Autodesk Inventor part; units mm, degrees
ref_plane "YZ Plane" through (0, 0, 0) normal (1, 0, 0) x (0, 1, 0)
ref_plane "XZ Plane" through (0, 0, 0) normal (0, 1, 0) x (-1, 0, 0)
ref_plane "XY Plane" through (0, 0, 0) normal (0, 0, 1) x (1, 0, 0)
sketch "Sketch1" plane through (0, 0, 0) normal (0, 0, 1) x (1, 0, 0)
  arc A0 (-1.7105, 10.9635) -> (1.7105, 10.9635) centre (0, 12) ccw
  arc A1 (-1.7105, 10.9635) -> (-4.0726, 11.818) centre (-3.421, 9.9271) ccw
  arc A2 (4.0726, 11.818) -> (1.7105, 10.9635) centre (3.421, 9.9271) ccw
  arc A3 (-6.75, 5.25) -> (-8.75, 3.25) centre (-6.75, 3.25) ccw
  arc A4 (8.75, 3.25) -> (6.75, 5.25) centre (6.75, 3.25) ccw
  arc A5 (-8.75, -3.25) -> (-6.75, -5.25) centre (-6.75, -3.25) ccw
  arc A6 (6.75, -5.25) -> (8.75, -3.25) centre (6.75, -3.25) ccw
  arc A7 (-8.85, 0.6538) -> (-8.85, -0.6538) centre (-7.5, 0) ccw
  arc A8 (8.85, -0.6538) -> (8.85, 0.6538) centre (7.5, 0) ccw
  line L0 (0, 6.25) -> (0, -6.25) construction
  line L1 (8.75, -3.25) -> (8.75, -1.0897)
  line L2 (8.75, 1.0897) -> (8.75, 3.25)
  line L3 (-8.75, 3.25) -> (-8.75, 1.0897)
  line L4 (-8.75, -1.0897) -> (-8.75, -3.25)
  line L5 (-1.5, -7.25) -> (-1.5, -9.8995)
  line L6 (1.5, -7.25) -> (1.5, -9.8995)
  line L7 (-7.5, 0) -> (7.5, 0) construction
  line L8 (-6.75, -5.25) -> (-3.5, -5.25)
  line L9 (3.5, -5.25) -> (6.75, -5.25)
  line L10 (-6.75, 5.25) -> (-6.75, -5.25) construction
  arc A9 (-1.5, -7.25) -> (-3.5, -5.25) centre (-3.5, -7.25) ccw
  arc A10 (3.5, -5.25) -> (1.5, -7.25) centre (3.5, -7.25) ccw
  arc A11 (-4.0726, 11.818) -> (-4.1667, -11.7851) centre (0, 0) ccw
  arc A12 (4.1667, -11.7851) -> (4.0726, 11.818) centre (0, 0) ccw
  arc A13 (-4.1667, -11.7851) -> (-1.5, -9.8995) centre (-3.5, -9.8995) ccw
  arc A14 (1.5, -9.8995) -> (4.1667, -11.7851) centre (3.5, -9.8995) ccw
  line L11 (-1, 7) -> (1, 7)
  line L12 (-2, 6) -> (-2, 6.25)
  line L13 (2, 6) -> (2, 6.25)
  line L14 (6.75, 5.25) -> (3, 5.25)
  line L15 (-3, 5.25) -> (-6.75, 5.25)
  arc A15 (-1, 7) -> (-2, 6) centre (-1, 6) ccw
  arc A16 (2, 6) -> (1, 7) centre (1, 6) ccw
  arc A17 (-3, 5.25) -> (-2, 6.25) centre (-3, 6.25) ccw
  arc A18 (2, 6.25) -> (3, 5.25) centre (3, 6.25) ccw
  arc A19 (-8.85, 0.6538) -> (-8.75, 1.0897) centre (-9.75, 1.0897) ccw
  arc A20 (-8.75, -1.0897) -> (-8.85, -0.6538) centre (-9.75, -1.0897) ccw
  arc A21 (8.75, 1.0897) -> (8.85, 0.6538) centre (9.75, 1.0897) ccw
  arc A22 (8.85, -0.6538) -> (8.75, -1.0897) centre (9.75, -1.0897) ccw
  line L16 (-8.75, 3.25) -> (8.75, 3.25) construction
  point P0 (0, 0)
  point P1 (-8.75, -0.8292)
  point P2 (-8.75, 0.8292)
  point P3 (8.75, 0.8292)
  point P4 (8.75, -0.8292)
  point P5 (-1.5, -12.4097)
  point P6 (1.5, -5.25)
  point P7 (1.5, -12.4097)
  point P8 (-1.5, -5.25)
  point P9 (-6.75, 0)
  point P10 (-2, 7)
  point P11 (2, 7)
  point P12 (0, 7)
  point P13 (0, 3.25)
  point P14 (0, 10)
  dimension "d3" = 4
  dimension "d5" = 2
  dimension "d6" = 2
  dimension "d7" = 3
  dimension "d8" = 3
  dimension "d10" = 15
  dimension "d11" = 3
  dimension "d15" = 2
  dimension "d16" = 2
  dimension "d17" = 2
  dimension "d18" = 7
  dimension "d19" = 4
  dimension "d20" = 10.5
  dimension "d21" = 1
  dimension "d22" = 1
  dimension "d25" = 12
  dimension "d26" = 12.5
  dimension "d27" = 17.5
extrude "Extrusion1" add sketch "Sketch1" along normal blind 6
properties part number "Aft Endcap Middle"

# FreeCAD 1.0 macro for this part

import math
import FreeCAD as App
import Part
import Sketcher

V = App.Vector
Q = App.Units.Quantity

doc = App.newDocument("Part")
body = doc.addObject("PartDesign::Body", "Body")

# Sketch on XY plane
sketch1 = doc.addObject("Sketcher::SketchObject", "Sketch")
body.addObject(sketch1)
sketch1.AttachmentSupport = (doc.XY_Plane, [""])
sketch1.MapMode = "FlatFace"
sketch1.addGeometry(Part.ArcOfCircle(Part.Circle(V(0, 12, 0), V(0, 0, 1), 2.000036), math.radians(-148.78568), math.radians(-31.21432)), False)
sketch1.addGeometry(Part.ArcOfCircle(Part.Circle(V(-3.421, 9.9271, 0), V(0, 0, 1), 1.999984), math.radians(31.211869), math.radians(109.013839)), False)
sketch1.addGeometry(Part.ArcOfCircle(Part.Circle(V(0, 0, 0), V(0, 0, 1), 12.499999), math.radians(109.014459), math.radians(250.528615)), False)
sketch1.addGeometry(Part.ArcOfCircle(Part.Circle(V(-3.5, -9.8995, 0), V(0, 0, 1), 1.999994), math.radians(-109.472294), math.radians(0)), False)
sketch1.addGeometry(Part.LineSegment(V(-1.5, -9.8995, 0), V(-1.5, -7.25, 0)), False)
sketch1.addGeometry(Part.ArcOfCircle(Part.Circle(V(-3.5, -7.25, 0), V(0, 0, 1), 2), math.radians(0), math.radians(90)), False)
sketch1.addGeometry(Part.LineSegment(V(-3.5, -5.25, 0), V(-6.75, -5.25, 0)), False)
sketch1.addGeometry(Part.ArcOfCircle(Part.Circle(V(-6.75, -3.25, 0), V(0, 0, 1), 2), math.radians(180), math.radians(270)), False)
sketch1.addGeometry(Part.LineSegment(V(-8.75, -3.25, 0), V(-8.75, -1.0897, 0)), False)
sketch1.addGeometry(Part.ArcOfCircle(Part.Circle(V(-9.75, -1.0897, 0), V(0, 0, 1), 1), math.radians(0), math.radians(25.842454)), False)
sketch1.addGeometry(Part.ArcOfCircle(Part.Circle(V(-7.5, 0, 0), V(0, 0, 1), 1.499985), math.radians(154.159265), math.radians(205.840735)), False)
sketch1.addGeometry(Part.ArcOfCircle(Part.Circle(V(-9.75, 1.0897, 0), V(0, 0, 1), 1.000004), math.radians(-25.842454), math.radians(0)), False)
sketch1.addGeometry(Part.LineSegment(V(-8.75, 1.0897, 0), V(-8.75, 3.25, 0)), False)
sketch1.addGeometry(Part.ArcOfCircle(Part.Circle(V(-6.75, 3.25, 0), V(0, 0, 1), 2), math.radians(90), math.radians(180)), False)
sketch1.addGeometry(Part.LineSegment(V(-6.75, 5.25, 0), V(-3, 5.25, 0)), False)
sketch1.addGeometry(Part.ArcOfCircle(Part.Circle(V(-3, 6.25, 0), V(0, 0, 1), 1), math.radians(-90), math.radians(0)), False)
sketch1.addGeometry(Part.LineSegment(V(-2, 6.25, 0), V(-2, 6, 0)), False)
sketch1.addGeometry(Part.ArcOfCircle(Part.Circle(V(-1, 6, 0), V(0, 0, 1), 1), math.radians(90), math.radians(180)), False)
sketch1.addGeometry(Part.LineSegment(V(-1, 7, 0), V(1, 7, 0)), False)
sketch1.addGeometry(Part.ArcOfCircle(Part.Circle(V(1, 6, 0), V(0, 0, 1), 1), math.radians(0), math.radians(90)), False)
sketch1.addGeometry(Part.LineSegment(V(2, 6, 0), V(2, 6.25, 0)), False)
sketch1.addGeometry(Part.ArcOfCircle(Part.Circle(V(3, 6.25, 0), V(0, 0, 1), 1), math.radians(180), math.radians(270)), False)
sketch1.addGeometry(Part.LineSegment(V(3, 5.25, 0), V(6.75, 5.25, 0)), False)
sketch1.addGeometry(Part.ArcOfCircle(Part.Circle(V(6.75, 3.25, 0), V(0, 0, 1), 2), math.radians(0), math.radians(90)), False)
sketch1.addGeometry(Part.LineSegment(V(8.75, 3.25, 0), V(8.75, 1.0897, 0)), False)
sketch1.addGeometry(Part.ArcOfCircle(Part.Circle(V(9.75, 1.0897, 0), V(0, 0, 1), 1), math.radians(180), math.radians(205.842454)), False)
sketch1.addGeometry(Part.ArcOfCircle(Part.Circle(V(7.5, 0, 0), V(0, 0, 1), 1.499985), math.radians(-25.840735), math.radians(25.840735)), False)
sketch1.addGeometry(Part.ArcOfCircle(Part.Circle(V(9.75, -1.0897, 0), V(0, 0, 1), 1.000004), math.radians(154.157546), math.radians(180)), False)
sketch1.addGeometry(Part.LineSegment(V(8.75, -1.0897, 0), V(8.75, -3.25, 0)), False)
sketch1.addGeometry(Part.ArcOfCircle(Part.Circle(V(6.75, -3.25, 0), V(0, 0, 1), 2), math.radians(-90), math.radians(0)), False)
sketch1.addGeometry(Part.LineSegment(V(6.75, -5.25, 0), V(3.5, -5.25, 0)), False)
sketch1.addGeometry(Part.ArcOfCircle(Part.Circle(V(3.5, -7.25, 0), V(0, 0, 1), 2), math.radians(90), math.radians(180)), False)
sketch1.addGeometry(Part.LineSegment(V(1.5, -7.25, 0), V(1.5, -9.8995, 0)), False)
sketch1.addGeometry(Part.ArcOfCircle(Part.Circle(V(3.5, -9.8995, 0), V(0, 0, 1), 2), math.radians(180), math.radians(289.472294)), False)
sketch1.addGeometry(Part.ArcOfCircle(Part.Circle(V(0, 0, 0), V(0, 0, 1), 12.500048), math.radians(-70.528615), math.radians(70.985541)), False)
sketch1.addGeometry(Part.ArcOfCircle(Part.Circle(V(3.421, 9.9271, 0), V(0, 0, 1), 2.000021), math.radians(70.986161), math.radians(148.788131)), False)
sketch1.addConstraint(Sketcher.Constraint("Tangent", 0, 1, 1, 1))
sketch1.addConstraint(Sketcher.Constraint("Tangent", 1, 2, 2, 1))
sketch1.addConstraint(Sketcher.Constraint("Tangent", 2, 2, 3, 1))
sketch1.addConstraint(Sketcher.Constraint("Tangent", 3, 2, 4, 1))
sketch1.addConstraint(Sketcher.Constraint("Tangent", 4, 2, 5, 1))
sketch1.addConstraint(Sketcher.Constraint("Tangent", 5, 2, 6, 1))
sketch1.addConstraint(Sketcher.Constraint("Tangent", 6, 2, 7, 2))
sketch1.addConstraint(Sketcher.Constraint("Tangent", 7, 1, 8, 1))
sketch1.addConstraint(Sketcher.Constraint("Tangent", 8, 2, 9, 1))
sketch1.addConstraint(Sketcher.Constraint("Tangent", 9, 2, 10, 2))
sketch1.addConstraint(Sketcher.Constraint("Tangent", 10, 1, 11, 1))
sketch1.addConstraint(Sketcher.Constraint("Tangent", 11, 2, 12, 1))
sketch1.addConstraint(Sketcher.Constraint("Tangent", 12, 2, 13, 2))
sketch1.addConstraint(Sketcher.Constraint("Tangent", 13, 1, 14, 1))
sketch1.addConstraint(Sketcher.Constraint("Tangent", 14, 2, 15, 1))
sketch1.addConstraint(Sketcher.Constraint("Tangent", 15, 2, 16, 1))
sketch1.addConstraint(Sketcher.Constraint("Tangent", 16, 2, 17, 2))
sketch1.addConstraint(Sketcher.Constraint("Tangent", 17, 1, 18, 1))
sketch1.addConstraint(Sketcher.Constraint("Tangent", 18, 2, 19, 2))
sketch1.addConstraint(Sketcher.Constraint("Tangent", 19, 1, 20, 1))
sketch1.addConstraint(Sketcher.Constraint("Tangent", 20, 2, 21, 1))
sketch1.addConstraint(Sketcher.Constraint("Tangent", 21, 2, 22, 1))
sketch1.addConstraint(Sketcher.Constraint("Tangent", 22, 2, 23, 2))
sketch1.addConstraint(Sketcher.Constraint("Tangent", 23, 1, 24, 1))
sketch1.addConstraint(Sketcher.Constraint("Tangent", 24, 2, 25, 1))
sketch1.addConstraint(Sketcher.Constraint("Tangent", 25, 2, 26, 2))
sketch1.addConstraint(Sketcher.Constraint("Tangent", 26, 1, 27, 1))
sketch1.addConstraint(Sketcher.Constraint("Tangent", 27, 2, 28, 1))
sketch1.addConstraint(Sketcher.Constraint("Tangent", 28, 2, 29, 2))
sketch1.addConstraint(Sketcher.Constraint("Tangent", 29, 1, 30, 1))
sketch1.addConstraint(Sketcher.Constraint("Tangent", 30, 2, 31, 1))
sketch1.addConstraint(Sketcher.Constraint("Tangent", 31, 2, 32, 1))
sketch1.addConstraint(Sketcher.Constraint("Tangent", 32, 2, 33, 1))
sketch1.addConstraint(Sketcher.Constraint("Tangent", 33, 2, 34, 1))
sketch1.addConstraint(Sketcher.Constraint("Tangent", 34, 2, 35, 1))
sketch1.addConstraint(Sketcher.Constraint("Tangent", 35, 2, 0, 2))
sketch1.addConstraint(Sketcher.Constraint("Vertical", 4))
sketch1.addConstraint(Sketcher.Constraint("Horizontal", 6))
sketch1.addConstraint(Sketcher.Constraint("Vertical", 8))
sketch1.addConstraint(Sketcher.Constraint("Vertical", 12))
sketch1.addConstraint(Sketcher.Constraint("Horizontal", 14))
sketch1.addConstraint(Sketcher.Constraint("Vertical", 16))
sketch1.addConstraint(Sketcher.Constraint("Horizontal", 18))
sketch1.addConstraint(Sketcher.Constraint("Vertical", 20))
sketch1.addConstraint(Sketcher.Constraint("Horizontal", 22))
sketch1.addConstraint(Sketcher.Constraint("Vertical", 24))
sketch1.addConstraint(Sketcher.Constraint("Vertical", 28))
sketch1.addConstraint(Sketcher.Constraint("Horizontal", 30))
sketch1.addConstraint(Sketcher.Constraint("Vertical", 32))
sketch1.addConstraint(Sketcher.Constraint("Coincident", 2, 3, -1, 1))
sketch1.addConstraint(Sketcher.Constraint("Coincident", 34, 3, -1, 1))
sketch1.addConstraint(Sketcher.Constraint("Equal", 0, 1))
sketch1.addConstraint(Sketcher.Constraint("Equal", 1, 3))
sketch1.addConstraint(Sketcher.Constraint("Equal", 3, 5))
sketch1.addConstraint(Sketcher.Constraint("Equal", 5, 7))
sketch1.addConstraint(Sketcher.Constraint("Equal", 9, 11))
sketch1.addConstraint(Sketcher.Constraint("Equal", 7, 13))
sketch1.addConstraint(Sketcher.Constraint("Equal", 11, 15))
sketch1.addConstraint(Sketcher.Constraint("Equal", 15, 17))
sketch1.addConstraint(Sketcher.Constraint("Equal", 17, 19))
sketch1.addConstraint(Sketcher.Constraint("Equal", 19, 21))
sketch1.addConstraint(Sketcher.Constraint("Equal", 13, 23))
sketch1.addConstraint(Sketcher.Constraint("Equal", 21, 25))
sketch1.addConstraint(Sketcher.Constraint("Equal", 10, 26))
sketch1.addConstraint(Sketcher.Constraint("Equal", 25, 27))
sketch1.addConstraint(Sketcher.Constraint("Equal", 23, 29))
sketch1.addConstraint(Sketcher.Constraint("Equal", 29, 31))
sketch1.addConstraint(Sketcher.Constraint("Equal", 31, 33))
sketch1.addConstraint(Sketcher.Constraint("Equal", 2, 34))
sketch1.addConstraint(Sketcher.Constraint("Equal", 33, 35))
sketch1.addConstraint(Sketcher.Constraint("Symmetric", 7, 3, 23, 3, -1, 1))
sketch1.addConstraint(Sketcher.Constraint("Symmetric", 10, 3, 26, 3, -1, 1))
sketch1.addConstraint(Sketcher.Constraint("Symmetric", 13, 3, 29, 3, -1, 1))
sketch1.addConstraint(Sketcher.Constraint("Symmetric", 15, 3, 21, 3, -2))
sketch1.addConstraint(Sketcher.Constraint("Symmetric", 11, 3, 25, 3, -2))
sketch1.addConstraint(Sketcher.Constraint("PointOnObject", 0, 3, -2))
sketch1.addConstraint(Sketcher.Constraint("Horizontal", 3, 3, 33, 3))
sketch1.addConstraint(Sketcher.Constraint("Radius", 0, Q("2 mm")))
sketch1.addConstraint(Sketcher.Constraint("Radius", 9, Q("1 mm")))
sketch1.addConstraint(Sketcher.Constraint("Radius", 2, Q("12.5 mm")))
sketch1.addConstraint(Sketcher.Constraint("Radius", 10, Q("1.5 mm")))
sketch1.addConstraint(Sketcher.Constraint("DistanceX", 18, 1, 18, 2, Q("2 mm")))
sketch1.addConstraint(Sketcher.Constraint("DistanceY", -1, 1, 0, 3, Q("12 mm")))
sketch1.addConstraint(Sketcher.Constraint("DistanceY", -1, 1, 17, 1, Q("7 mm")))
sketch1.addConstraint(Sketcher.Constraint("DistanceX", 10, 3, 5, 3, Q("4 mm")))
sketch1.addConstraint(Sketcher.Constraint("DistanceX", 5, 3, 31, 3, Q("7 mm")))
sketch1.addConstraint(Sketcher.Constraint("DistanceX", 6, 2, 6, 1, Q("3.25 mm")))
sketch1.addConstraint(Sketcher.Constraint("DistanceY", 16, 2, 16, 1, Q("0.25 mm")))
pad1 = doc.addObject("PartDesign::Pad", "Pad")
body.addObject(pad1)
pad1.Profile = sketch1
pad1.Length = 6

doc.recompute()
